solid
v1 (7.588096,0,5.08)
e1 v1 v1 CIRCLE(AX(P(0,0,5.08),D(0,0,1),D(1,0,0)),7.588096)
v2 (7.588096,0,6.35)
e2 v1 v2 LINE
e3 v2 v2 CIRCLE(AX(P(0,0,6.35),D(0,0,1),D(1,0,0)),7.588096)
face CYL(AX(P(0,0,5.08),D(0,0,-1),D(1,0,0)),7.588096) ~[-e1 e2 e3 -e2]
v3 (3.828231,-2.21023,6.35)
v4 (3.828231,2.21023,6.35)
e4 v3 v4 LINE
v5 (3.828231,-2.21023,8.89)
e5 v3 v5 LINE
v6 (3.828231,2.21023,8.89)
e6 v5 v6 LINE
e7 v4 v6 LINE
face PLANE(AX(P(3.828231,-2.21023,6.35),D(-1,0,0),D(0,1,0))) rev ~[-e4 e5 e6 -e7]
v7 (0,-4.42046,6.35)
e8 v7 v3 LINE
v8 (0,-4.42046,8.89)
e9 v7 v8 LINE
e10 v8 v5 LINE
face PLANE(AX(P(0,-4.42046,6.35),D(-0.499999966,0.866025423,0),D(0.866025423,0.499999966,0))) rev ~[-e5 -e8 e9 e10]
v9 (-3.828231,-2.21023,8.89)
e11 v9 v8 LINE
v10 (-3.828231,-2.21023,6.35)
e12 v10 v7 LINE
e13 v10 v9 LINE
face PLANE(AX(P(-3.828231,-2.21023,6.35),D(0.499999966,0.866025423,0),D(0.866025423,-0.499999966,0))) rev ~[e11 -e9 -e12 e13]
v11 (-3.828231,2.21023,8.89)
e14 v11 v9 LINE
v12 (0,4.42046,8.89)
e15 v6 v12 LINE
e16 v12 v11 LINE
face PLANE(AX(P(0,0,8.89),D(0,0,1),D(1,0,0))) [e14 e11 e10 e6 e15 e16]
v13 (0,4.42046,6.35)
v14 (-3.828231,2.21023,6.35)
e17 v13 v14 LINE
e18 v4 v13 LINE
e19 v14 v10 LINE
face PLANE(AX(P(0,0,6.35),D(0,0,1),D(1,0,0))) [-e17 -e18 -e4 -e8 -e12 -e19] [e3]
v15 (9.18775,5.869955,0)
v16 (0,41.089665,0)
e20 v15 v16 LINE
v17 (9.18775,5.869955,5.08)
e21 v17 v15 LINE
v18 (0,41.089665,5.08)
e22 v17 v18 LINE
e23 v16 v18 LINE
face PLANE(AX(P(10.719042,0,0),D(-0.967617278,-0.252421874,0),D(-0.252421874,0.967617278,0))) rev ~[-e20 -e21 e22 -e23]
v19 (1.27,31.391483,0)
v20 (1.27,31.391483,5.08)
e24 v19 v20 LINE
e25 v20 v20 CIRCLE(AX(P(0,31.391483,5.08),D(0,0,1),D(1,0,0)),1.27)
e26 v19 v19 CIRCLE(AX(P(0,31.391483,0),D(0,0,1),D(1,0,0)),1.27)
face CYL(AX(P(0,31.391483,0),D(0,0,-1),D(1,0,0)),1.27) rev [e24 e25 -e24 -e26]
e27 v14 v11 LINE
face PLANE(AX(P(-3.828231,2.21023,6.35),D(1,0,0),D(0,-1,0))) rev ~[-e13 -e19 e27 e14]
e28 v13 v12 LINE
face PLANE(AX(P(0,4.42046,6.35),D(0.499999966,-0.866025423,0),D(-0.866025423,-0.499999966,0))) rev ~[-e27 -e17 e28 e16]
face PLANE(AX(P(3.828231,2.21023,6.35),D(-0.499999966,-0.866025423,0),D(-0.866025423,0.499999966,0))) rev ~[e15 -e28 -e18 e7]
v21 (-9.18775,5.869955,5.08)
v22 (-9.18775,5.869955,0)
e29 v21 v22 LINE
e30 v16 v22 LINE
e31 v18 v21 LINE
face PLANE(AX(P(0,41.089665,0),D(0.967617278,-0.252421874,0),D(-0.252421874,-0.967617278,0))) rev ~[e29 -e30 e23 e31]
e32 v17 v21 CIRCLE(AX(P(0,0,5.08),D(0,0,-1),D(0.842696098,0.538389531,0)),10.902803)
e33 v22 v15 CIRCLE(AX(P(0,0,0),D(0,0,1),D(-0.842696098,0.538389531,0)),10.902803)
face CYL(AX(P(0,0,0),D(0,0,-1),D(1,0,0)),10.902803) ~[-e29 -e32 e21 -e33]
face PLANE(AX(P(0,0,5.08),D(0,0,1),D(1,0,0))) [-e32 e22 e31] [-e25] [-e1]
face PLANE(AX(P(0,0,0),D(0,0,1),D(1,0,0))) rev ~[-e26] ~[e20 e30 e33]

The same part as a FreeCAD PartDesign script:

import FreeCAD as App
import Part
import Sketcher
Q = App.Units.Quantity


def add_polygon(sketch, points):
    """Adds a closed chain of lines whose ends are joined by coincident constraints."""
    first, n = sketch.GeometryCount, len(points)
    for a, b in zip(points, points[1:] + points[:1]):
        sketch.addGeometry(Part.LineSegment(App.Vector(*a, 0), App.Vector(*b, 0)), False)
    for i in range(n):
        sketch.addConstraint(Sketcher.Constraint("Coincident", first + i, 2, first + (i + 1) % n, 1))

doc = App.newDocument("Part")
body = doc.addObject("PartDesign::Body", "Body")

sketch1 = doc.addObject("Sketcher::SketchObject", "Sketch")
body.addObject(sketch1)
sketch1.AttachmentSupport = (doc.XY_Plane, [""])
sketch1.MapMode = "FlatFace"
add_polygon(sketch1, [(10.7, 0), (0, 41.1), (-10.7, 0)])
sketch1.addGeometry(Part.Circle(App.Vector(0, 31.4, 0), App.Vector(0, 0, 1), 1.3), False)
sketch1.addConstraint([
    Sketcher.Constraint("Horizontal", 2),
    Sketcher.Constraint("Symmetric", 1, 2, 2, 2, -1, 1),
    Sketcher.Constraint("PointOnObject", 3, 3, -2),
    Sketcher.Constraint("PointOnObject", 0, 2, -2),
    Sketcher.Constraint("Diameter", 3, Q("0.1 in")),
    Sketcher.Constraint("Distance", 0, Q("42.46479 mm")),
    Sketcher.Constraint("DistanceX", 2, 1, 2, 2, Q("21.438084 mm")),
    Sketcher.Constraint("DistanceY", 3, 3, 0, 2, Q("9.698182 mm")),
])
pad1 = doc.addObject("PartDesign::Pad", "Pad")
body.addObject(pad1)
pad1.Profile = sketch1
pad1.Length = Q("0.2 in")

sketch2 = doc.addObject("Sketcher::SketchObject", "Sketch001")
body.addObject(sketch2)
sketch2.AttachmentSupport = (doc.XY_Plane, [""])
sketch2.MapMode = "FlatFace"
sketch2.addGeometry(Part.Circle(App.Vector(0, 0, 0), App.Vector(0, 0, 1), 11), False)
sketch2.addConstraint([
    Sketcher.Constraint("Coincident", 0, 3, -1, 1),
    Sketcher.Constraint("Diameter", 0, Q("21.805606 mm")),
])
pad2 = doc.addObject("PartDesign::Pad", "Pad001")
body.addObject(pad2)
pad2.Profile = sketch2
pad2.Length = Q("0.2 in")

sketch3 = doc.addObject("Sketcher::SketchObject", "Sketch002")
body.addObject(sketch3)
sketch3.AttachmentSupport = (doc.XY_Plane, [""])
sketch3.MapMode = "FlatFace"
sketch3.AttachmentOffset = App.Placement(App.Vector(0, 0, 0.2 * 25.4), App.Rotation())
sketch3.addGeometry(Part.Circle(App.Vector(0, 0, 0), App.Vector(0, 0, 1), 8), False)
sketch3.addConstraint([
    Sketcher.Constraint("Coincident", 0, 3, -1, 1),
    Sketcher.Constraint("Diameter", 0, Q("15.176192 mm")),
])
pad3 = doc.addObject("PartDesign::Pad", "Pad002")
body.addObject(pad3)
pad3.Profile = sketch3
pad3.Length = Q("0.05 in")

sketch4 = doc.addObject("Sketcher::SketchObject", "Sketch003")
body.addObject(sketch4)
sketch4.AttachmentSupport = (doc.XY_Plane, [""])
sketch4.MapMode = "FlatFace"
sketch4.AttachmentOffset = App.Placement(App.Vector(0, 0, 0.25 * 25.4), App.Rotation())
add_polygon(sketch4, [(3.8, -2.2), (3.8, 2.2), (0, 4.4), (-3.8, 2.2), (-3.8, -2.2), (0, -4.4)])
sketch4.addConstraint([
    Sketcher.Constraint("Vertical", 0),
    Sketcher.Constraint("Vertical", 3),
    Sketcher.Constraint("Symmetric", 0, 2, 3, 2, -1, 1),
    Sketcher.Constraint("Symmetric", 1, 2, 4, 2, -1, 1),
    Sketcher.Constraint("PointOnObject", 1, 2, -2),
    Sketcher.Constraint("Parallel", 2, 5),
    Sketcher.Constraint("Horizontal", 0, 2, 2, 2),
    Sketcher.Constraint("Angle", 1, Q("150.000002 deg")),
    Sketcher.Constraint("DistanceY", 0, 1, 0, 2, Q("4.42046 mm")),
    Sketcher.Constraint("Distance", 1, Q("4.42046 mm")),
])
pad4 = doc.addObject("PartDesign::Pad", "Pad003")
body.addObject(pad4)
pad4.Profile = sketch4
pad4.Length = Q("0.1 in")

doc.recompute()
